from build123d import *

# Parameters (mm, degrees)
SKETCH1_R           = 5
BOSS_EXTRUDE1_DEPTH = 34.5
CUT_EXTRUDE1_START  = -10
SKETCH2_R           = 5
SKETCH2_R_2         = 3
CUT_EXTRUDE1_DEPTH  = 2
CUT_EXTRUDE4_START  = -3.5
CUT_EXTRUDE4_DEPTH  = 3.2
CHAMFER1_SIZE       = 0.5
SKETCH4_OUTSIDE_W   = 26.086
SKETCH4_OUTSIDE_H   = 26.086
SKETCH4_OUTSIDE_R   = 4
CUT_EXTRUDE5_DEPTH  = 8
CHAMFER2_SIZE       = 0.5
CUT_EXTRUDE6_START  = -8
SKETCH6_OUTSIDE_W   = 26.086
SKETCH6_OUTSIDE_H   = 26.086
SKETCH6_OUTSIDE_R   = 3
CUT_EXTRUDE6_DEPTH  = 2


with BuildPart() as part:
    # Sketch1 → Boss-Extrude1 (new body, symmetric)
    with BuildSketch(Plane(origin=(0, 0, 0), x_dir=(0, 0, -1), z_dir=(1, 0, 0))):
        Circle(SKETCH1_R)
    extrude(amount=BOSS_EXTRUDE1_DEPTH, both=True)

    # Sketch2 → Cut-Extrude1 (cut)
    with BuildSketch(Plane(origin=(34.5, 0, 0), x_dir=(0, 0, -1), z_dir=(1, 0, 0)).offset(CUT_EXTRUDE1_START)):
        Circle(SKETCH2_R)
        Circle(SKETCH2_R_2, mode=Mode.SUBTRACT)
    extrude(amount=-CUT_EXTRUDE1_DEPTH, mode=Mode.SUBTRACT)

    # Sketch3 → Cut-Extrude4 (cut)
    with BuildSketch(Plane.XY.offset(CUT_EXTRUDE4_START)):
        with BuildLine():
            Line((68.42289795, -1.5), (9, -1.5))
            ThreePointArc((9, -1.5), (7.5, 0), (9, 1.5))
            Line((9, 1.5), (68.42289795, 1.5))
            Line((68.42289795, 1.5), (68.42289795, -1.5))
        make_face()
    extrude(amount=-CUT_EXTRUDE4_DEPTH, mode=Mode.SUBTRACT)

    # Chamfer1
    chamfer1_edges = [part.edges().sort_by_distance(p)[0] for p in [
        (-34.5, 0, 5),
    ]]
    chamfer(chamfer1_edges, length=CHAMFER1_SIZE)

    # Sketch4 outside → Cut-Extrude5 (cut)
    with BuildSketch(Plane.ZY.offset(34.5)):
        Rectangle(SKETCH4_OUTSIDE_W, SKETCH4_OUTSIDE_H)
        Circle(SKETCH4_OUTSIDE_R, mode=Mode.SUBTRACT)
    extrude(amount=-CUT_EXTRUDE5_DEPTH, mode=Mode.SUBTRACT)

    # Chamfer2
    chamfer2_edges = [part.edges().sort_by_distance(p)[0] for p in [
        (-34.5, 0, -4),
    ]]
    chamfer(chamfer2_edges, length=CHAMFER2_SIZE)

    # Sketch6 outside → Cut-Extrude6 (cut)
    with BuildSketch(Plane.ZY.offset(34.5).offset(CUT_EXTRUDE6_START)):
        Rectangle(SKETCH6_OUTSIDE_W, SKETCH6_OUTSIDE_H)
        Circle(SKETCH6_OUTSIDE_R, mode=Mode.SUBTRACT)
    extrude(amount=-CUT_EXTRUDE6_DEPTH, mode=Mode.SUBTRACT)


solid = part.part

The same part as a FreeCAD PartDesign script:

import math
import FreeCAD as App
import Part
import Sketcher
from FreeCAD import Vector


def edges_at(feature, points):
    """Names of the edges that pass closest to the given points."""
    edges = feature.Shape.Edges
    near = lambda p: min(range(len(edges)), key=lambda i: edges[i].distToShape(Part.Vertex(*p))[0])
    return sorted({f"Edge{near(p) + 1}" for p in points})


def add_polygon(sketch, points):
    """Adds a closed chain of lines whose ends are joined by coincident constraints."""
    first, n = sketch.GeometryCount, len(points)
    for a, b in zip(points, points[1:] + points[:1]):
        sketch.addGeometry(Part.LineSegment(App.Vector(*a, 0), App.Vector(*b, 0)), False)
    for i in range(n):
        sketch.addConstraint(Sketcher.Constraint("Coincident", first + i, 2, first + (i + 1) % n, 1))

doc = App.newDocument("Part")
body = doc.addObject("PartDesign::Body", "Body")

# Sketch on YZ plane
sketch1 = body.newObject("Sketcher::SketchObject", "Sketch")
sketch1.AttachmentSupport = (doc.getObject("YZ_Plane"), [""])
sketch1.MapMode = "FlatFace"
sketch1.addGeometry(Part.Circle(Vector(0, 0, 0), Vector(0, 0, 1), 5), False)
sketch1.addConstraint(Sketcher.Constraint("Coincident", 0, 3, -1, 1))
sketch1.addConstraint(Sketcher.Constraint("Diameter", 0, 10.0))
pad1 = body.newObject("PartDesign::Pad", "Pad")
pad1.Profile = sketch1
pad1.Length = 69
pad1.Midplane = True

# Sketch on YZ plane
sketch2 = body.newObject("Sketcher::SketchObject", "Sketch001")
sketch2.AttachmentSupport = (doc.getObject("YZ_Plane"), [""])
sketch2.MapMode = "FlatFace"
sketch2.AttachmentOffset = App.Placement(Vector(0, 0, 24.5), App.Rotation())
sketch2.addGeometry(Part.Circle(Vector(0, 0, 0), Vector(0, 0, 1), 5), False)
sketch2.addGeometry(Part.Circle(Vector(0, 0, 0), Vector(0, 0, 1), 3), False)
sketch2.addConstraint(Sketcher.Constraint("Coincident", 0, 3, -1, 1))
sketch2.addConstraint(Sketcher.Constraint("Coincident", 1, 3, -1, 1))
sketch2.addConstraint(Sketcher.Constraint("Diameter", 0, 10.0))
sketch2.addConstraint(Sketcher.Constraint("Diameter", 1, 6.0))
pocket1 = body.newObject("PartDesign::Pocket", "Pocket")
pocket1.Profile = sketch2
pocket1.Length = 2

# Sketch on XY plane
sketch3 = body.newObject("Sketcher::SketchObject", "Sketch002")
sketch3.AttachmentSupport = (doc.getObject("XY_Plane"), [""])
sketch3.MapMode = "FlatFace"
sketch3.AttachmentOffset = App.Placement(Vector(0, 0, -3.5), App.Rotation())
sketch3.addGeometry(Part.LineSegment(Vector(9, -1.5, 0), Vector(68.4, -1.5, 0)), False)
sketch3.addGeometry(Part.LineSegment(Vector(68.4, -1.5, 0), Vector(68.4, 1.5, 0)), False)
sketch3.addGeometry(Part.LineSegment(Vector(68.4, 1.5, 0), Vector(9, 1.5, 0)), False)
sketch3.addGeometry(Part.ArcOfCircle(Part.Circle(Vector(9, 0, 0), Vector(0, 0, 1), 1.5), math.radians(90), math.radians(270)), False)
sketch3.addConstraint(Sketcher.Constraint("Coincident", 0, 2, 1, 1))
sketch3.addConstraint(Sketcher.Constraint("Coincident", 1, 2, 2, 1))
sketch3.addConstraint(Sketcher.Constraint("Tangent", 2, 2, 3, 1))
sketch3.addConstraint(Sketcher.Constraint("Tangent", 3, 2, 0, 1))
sketch3.addConstraint(Sketcher.Constraint("Horizontal", 0))
sketch3.addConstraint(Sketcher.Constraint("Vertical", 1))
sketch3.addConstraint(Sketcher.Constraint("Horizontal", 2))
sketch3.addConstraint(Sketcher.Constraint("PointOnObject", 3, 3, -1))
sketch3.addConstraint(Sketcher.Constraint("Radius", 3, 1.5))
sketch3.addConstraint(Sketcher.Constraint("DistanceX", -1, 1, 3, 3, 9.0))
sketch3.addConstraint(Sketcher.Constraint("DistanceX", 0, 1, 0, 2, 59.422898))
pocket2 = body.newObject("PartDesign::Pocket", "Pocket001")
pocket2.Profile = sketch3
pocket2.Length = 3.2
doc.recompute()

chamfer = body.newObject("PartDesign::Chamfer", "Chamfer")
chamfer.Base = (pocket2, edges_at(pocket2, [(-34.5, 0, 5)]))
chamfer.Size = 0.5

# Sketch on YZ plane
sketch4 = body.newObject("Sketcher::SketchObject", "Sketch003")
sketch4.AttachmentSupport = (doc.getObject("YZ_Plane"), [""])
sketch4.MapMode = "FlatFace"
sketch4.AttachmentOffset = App.Placement(Vector(0, 0, -34.5), App.Rotation())
add_polygon(sketch4, [(13, -13), (-13, -13), (-13, 13), (13, 13)])  # lines 0-3
sketch4.addGeometry(Part.Circle(Vector(0, 0, 0), Vector(0, 0, 1), 4), False)  # 4
sketch4.addConstraint(Sketcher.Constraint("Horizontal", 0))
sketch4.addConstraint(Sketcher.Constraint("Vertical", 1))
sketch4.addConstraint(Sketcher.Constraint("Horizontal", 2))
sketch4.addConstraint(Sketcher.Constraint("Vertical", 3))
sketch4.addConstraint(Sketcher.Constraint("Coincident", 4, 3, -1, 1))
sketch4.addConstraint(Sketcher.Constraint("Symmetric", 0, 2, 2, 2, -1, 1))
sketch4.addConstraint(Sketcher.Constraint("Equal", 2, 1))
sketch4.addConstraint(Sketcher.Constraint("Diameter", 4, 8.0))
sketch4.addConstraint(Sketcher.Constraint("DistanceX", 0, 2, 0, 1, 26.086))
pocket3 = body.newObject("PartDesign::Pocket", "Pocket002")
pocket3.Profile = sketch4
pocket3.Length = 8
pocket3.Reversed = True
doc.recompute()

chamfer2 = body.newObject("PartDesign::Chamfer", "Chamfer001")
chamfer2.Base = (pocket3, edges_at(pocket3, [(-34.5, 0, -4)]))
chamfer2.Size = 0.5

# Sketch on YZ plane
sketch5 = body.newObject("Sketcher::SketchObject", "Sketch004")
sketch5.AttachmentSupport = (doc.getObject("YZ_Plane"), [""])
sketch5.MapMode = "FlatFace"
sketch5.AttachmentOffset = App.Placement(Vector(0, 0, -26.5), App.Rotation())
add_polygon(sketch5, [(13, -13), (-13, -13), (-13, 13), (13, 13)])  # lines 0-3
sketch5.addGeometry(Part.Circle(Vector(0, 0, 0), Vector(0, 0, 1), 3), False)  # 4
sketch5.addConstraint(Sketcher.Constraint("Horizontal", 0))
sketch5.addConstraint(Sketcher.Constraint("Vertical", 1))
sketch5.addConstraint(Sketcher.Constraint("Horizontal", 2))
sketch5.addConstraint(Sketcher.Constraint("Vertical", 3))
sketch5.addConstraint(Sketcher.Constraint("Coincident", 4, 3, -1, 1))
sketch5.addConstraint(Sketcher.Constraint("Symmetric", 0, 2, 2, 2, -1, 1))
sketch5.addConstraint(Sketcher.Constraint("Equal", 2, 1))
sketch5.addConstraint(Sketcher.Constraint("Diameter", 4, 6.0))
sketch5.addConstraint(Sketcher.Constraint("DistanceX", 0, 2, 0, 1, 26.086))
pocket4 = body.newObject("PartDesign::Pocket", "Pocket003")
pocket4.Profile = sketch5
pocket4.Length = 2
pocket4.Reversed = True

doc.recompute()
